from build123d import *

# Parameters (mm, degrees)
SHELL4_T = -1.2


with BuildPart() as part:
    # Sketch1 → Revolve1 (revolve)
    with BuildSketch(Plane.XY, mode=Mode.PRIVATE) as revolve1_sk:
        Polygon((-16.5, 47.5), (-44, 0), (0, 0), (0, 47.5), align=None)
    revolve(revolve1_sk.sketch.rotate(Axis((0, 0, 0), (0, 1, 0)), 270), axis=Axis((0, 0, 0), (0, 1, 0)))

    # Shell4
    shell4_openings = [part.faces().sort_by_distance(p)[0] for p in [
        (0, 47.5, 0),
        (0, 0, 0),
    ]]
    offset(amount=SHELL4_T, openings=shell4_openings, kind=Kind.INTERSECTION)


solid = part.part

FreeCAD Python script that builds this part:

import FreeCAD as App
import Part
import Sketcher
from FreeCAD import Vector
Q = App.Units.Quantity


def faces_at(feature, points):
    """Names of the faces that lie closest to the given points."""
    faces = feature.Shape.Faces
    near = lambda p: min(range(len(faces)), key=lambda i: faces[i].distToShape(Part.Vertex(*p))[0])
    return sorted({f"Face{near(p) + 1}" for p in points})


def add_polygon(sketch, points):
    """Adds a closed chain of lines whose ends are joined by coincident constraints."""
    first, n = sketch.GeometryCount, len(points)
    for a, b in zip(points, points[1:] + points[:1]):
        sketch.addGeometry(Part.LineSegment(App.Vector(*a, 0), App.Vector(*b, 0)), False)
    for i in range(n):
        sketch.addConstraint(Sketcher.Constraint("Coincident", first + i, 2, first + (i + 1) % n, 1))

doc = App.newDocument("Part")
params = doc.addObject("Spreadsheet::Sheet", "Params")
for row, (alias, value) in enumerate([
    ("sketch1_width", "44 mm"),
    ("sketch1_width2", "16.5 mm"),
    ("sketch1_height", "47.5 mm"),
    ("revolution_angle", "360 deg"),
    ("thickness_wall", "1.2 mm"),
], start=1):
    params.set(f"A{row}", alias)
    params.set(f"B{row}", "=" + value)
    params.setAlias(f"B{row}", alias)

body = doc.addObject("PartDesign::Body", "Body")

sketch1 = body.newObject("Sketcher::SketchObject", "Sketch")
sketch1.AttachmentSupport = (doc.getObject("XY_Plane"), [""])
sketch1.MapMode = "FlatFace"
add_polygon(sketch1, [(-16, 48), (-44, 0), (0, 0), (0, 48)])
sketch1.addConstraint([
    Sketcher.Constraint("Horizontal", 1),
    Sketcher.Constraint("Vertical", 2),
    Sketcher.Constraint("Horizontal", 3),
    Sketcher.Constraint("Coincident", 1, 2, -1, 1),
    Sketcher.Constraint("DistanceX", 1, 1, 1, 2, Q("44 mm")),
    Sketcher.Constraint("DistanceX", 3, 2, 3, 1, Q("16.5 mm")),
    Sketcher.Constraint("DistanceY", 2, 1, 2, 2, Q("47.5 mm")),
])
sketch1.setExpression("Constraints[8]", "Params.sketch1_width")
sketch1.setExpression("Constraints[9]", "Params.sketch1_width2")
sketch1.setExpression("Constraints[10]", "Params.sketch1_height")
revolution = body.newObject("PartDesign::Revolution", "Revolution")
revolution.Profile = sketch1
revolution.ReferenceAxis = (sketch1, ["V_Axis"])
revolution.setExpression("Angle", "Params.revolution_angle")
doc.recompute()

thickness = body.newObject("PartDesign::Thickness", "Thickness")
thickness.Base = (revolution, faces_at(revolution, [(0, 47.5, 0), (0, 0, 0)]))
thickness.setExpression("Value", "Params.thickness_wall")
thickness.Reversed = True
thickness.Join = "Intersection"

doc.recompute()
